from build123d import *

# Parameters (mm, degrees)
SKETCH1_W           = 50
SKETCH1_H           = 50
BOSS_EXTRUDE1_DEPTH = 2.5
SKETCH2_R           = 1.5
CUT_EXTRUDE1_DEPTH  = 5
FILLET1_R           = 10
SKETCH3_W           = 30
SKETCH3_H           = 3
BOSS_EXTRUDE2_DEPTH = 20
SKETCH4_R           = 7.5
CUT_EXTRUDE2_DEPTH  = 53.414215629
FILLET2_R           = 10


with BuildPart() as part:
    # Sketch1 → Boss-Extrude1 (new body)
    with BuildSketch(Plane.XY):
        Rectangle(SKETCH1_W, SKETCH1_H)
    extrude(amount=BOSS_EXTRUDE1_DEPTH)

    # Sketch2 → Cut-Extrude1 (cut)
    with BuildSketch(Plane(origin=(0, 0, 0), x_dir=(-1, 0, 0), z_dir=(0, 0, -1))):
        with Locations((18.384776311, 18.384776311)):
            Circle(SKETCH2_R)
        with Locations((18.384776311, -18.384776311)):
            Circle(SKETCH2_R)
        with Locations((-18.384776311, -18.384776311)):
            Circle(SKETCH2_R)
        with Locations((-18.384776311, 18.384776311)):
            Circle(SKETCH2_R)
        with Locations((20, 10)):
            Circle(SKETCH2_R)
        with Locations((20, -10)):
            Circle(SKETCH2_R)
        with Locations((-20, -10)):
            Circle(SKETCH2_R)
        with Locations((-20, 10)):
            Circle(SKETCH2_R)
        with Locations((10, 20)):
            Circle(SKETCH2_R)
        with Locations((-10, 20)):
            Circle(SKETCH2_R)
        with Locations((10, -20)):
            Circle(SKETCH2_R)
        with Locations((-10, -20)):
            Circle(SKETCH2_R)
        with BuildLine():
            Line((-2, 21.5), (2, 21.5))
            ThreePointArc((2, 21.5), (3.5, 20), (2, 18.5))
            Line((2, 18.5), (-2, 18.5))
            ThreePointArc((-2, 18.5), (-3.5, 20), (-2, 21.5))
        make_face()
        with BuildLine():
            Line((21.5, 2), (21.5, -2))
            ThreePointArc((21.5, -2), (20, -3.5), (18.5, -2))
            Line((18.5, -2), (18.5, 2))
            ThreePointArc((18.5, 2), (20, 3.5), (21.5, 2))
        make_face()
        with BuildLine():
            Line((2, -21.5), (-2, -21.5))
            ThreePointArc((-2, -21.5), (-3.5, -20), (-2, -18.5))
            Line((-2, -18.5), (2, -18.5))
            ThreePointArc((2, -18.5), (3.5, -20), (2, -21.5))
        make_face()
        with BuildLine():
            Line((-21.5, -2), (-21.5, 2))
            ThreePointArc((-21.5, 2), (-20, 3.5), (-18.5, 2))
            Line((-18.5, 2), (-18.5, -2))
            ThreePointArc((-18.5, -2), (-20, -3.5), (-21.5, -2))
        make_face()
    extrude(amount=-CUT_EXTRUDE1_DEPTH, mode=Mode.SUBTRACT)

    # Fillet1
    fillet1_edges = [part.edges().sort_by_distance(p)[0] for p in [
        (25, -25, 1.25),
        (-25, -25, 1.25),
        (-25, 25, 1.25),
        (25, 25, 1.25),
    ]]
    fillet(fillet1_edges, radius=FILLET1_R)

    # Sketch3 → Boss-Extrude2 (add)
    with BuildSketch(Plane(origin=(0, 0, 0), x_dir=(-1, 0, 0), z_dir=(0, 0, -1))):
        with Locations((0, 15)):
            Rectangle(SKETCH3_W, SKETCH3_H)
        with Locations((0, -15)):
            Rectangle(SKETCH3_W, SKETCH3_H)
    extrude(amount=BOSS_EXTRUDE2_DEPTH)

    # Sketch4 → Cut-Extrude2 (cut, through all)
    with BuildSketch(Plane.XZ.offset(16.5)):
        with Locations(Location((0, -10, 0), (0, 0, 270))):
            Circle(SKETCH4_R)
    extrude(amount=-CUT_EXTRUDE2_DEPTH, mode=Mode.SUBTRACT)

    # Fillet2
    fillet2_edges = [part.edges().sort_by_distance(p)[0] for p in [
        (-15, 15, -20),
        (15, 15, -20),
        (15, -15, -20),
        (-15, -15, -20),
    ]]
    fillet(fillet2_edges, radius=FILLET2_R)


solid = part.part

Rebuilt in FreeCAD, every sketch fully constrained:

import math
import FreeCAD as App
import Part
import Sketcher
from FreeCAD import Vector
Q = App.Units.Quantity


def edges_at(feature, points):
    """Names of the edges that pass closest to the given points."""
    edges = feature.Shape.Edges
    near = lambda p: min(range(len(edges)), key=lambda i: edges[i].distToShape(Part.Vertex(*p))[0])
    return sorted({f"Edge{near(p) + 1}" for p in points})


def add_polygon(sketch, points):
    """Adds a closed chain of lines whose ends are joined by coincident constraints."""
    first, n = sketch.GeometryCount, len(points)
    for a, b in zip(points, points[1:] + points[:1]):
        sketch.addGeometry(Part.LineSegment(App.Vector(*a, 0), App.Vector(*b, 0)), False)
    for i in range(n):
        sketch.addConstraint(Sketcher.Constraint("Coincident", first + i, 2, first + (i + 1) % n, 1))

doc = App.newDocument("Part")
body = doc.addObject("PartDesign::Body", "Body")

sketch1 = body.newObject("Sketcher::SketchObject", "Sketch")
sketch1.AttachmentSupport = (doc.getObject("XY_Plane"), [""])
sketch1.MapMode = "FlatFace"
add_polygon(sketch1, [(-25, 25), (-25, -25), (25, -25), (25, 25)])
sketch1.addConstraint(Sketcher.Constraint("Vertical", 0))
sketch1.addConstraint(Sketcher.Constraint("Horizontal", 1))
sketch1.addConstraint(Sketcher.Constraint("Vertical", 2))
sketch1.addConstraint(Sketcher.Constraint("Horizontal", 3))
sketch1.addConstraint(Sketcher.Constraint("Symmetric", 0, 2, 2, 2, -1, 1))
sketch1.addConstraint(Sketcher.Constraint("Equal", 3, 0))
sketch1.addConstraint(Sketcher.Constraint("DistanceX", 1, 1, 1, 2, Q("50 mm")))
pad1 = body.newObject("PartDesign::Pad", "Pad")
pad1.Profile = sketch1
pad1.Length = 2.5

sketch2 = body.newObject("Sketcher::SketchObject", "Sketch001")
sketch2.AttachmentSupport = (doc.getObject("XY_Plane"), [""])
sketch2.MapMode = "FlatFace"
sketch2.addGeometry(Part.Circle(Vector(-18.4, 18.4, 0), Vector(0, 0, 1), 1.5), False)
sketch2.addGeometry(Part.Circle(Vector(-18.4, -18.4, 0), Vector(0, 0, 1), 1.5), False)
sketch2.addGeometry(Part.Circle(Vector(18.4, -18.4, 0), Vector(0, 0, 1), 1.5), False)
sketch2.addGeometry(Part.Circle(Vector(18.4, 18.4, 0), Vector(0, 0, 1), 1.5), False)
sketch2.addGeometry(Part.Circle(Vector(-20, 10, 0), Vector(0, 0, 1), 1.5), False)
sketch2.addGeometry(Part.Circle(Vector(-20, -10, 0), Vector(0, 0, 1), 1.5), False)
sketch2.addGeometry(Part.Circle(Vector(20, -10, 0), Vector(0, 0, 1), 1.5), False)
sketch2.addGeometry(Part.Circle(Vector(20, 10, 0), Vector(0, 0, 1), 1.5), False)
sketch2.addGeometry(Part.Circle(Vector(-10, 20, 0), Vector(0, 0, 1), 1.5), False)
sketch2.addGeometry(Part.Circle(Vector(10, 20, 0), Vector(0, 0, 1), 1.5), False)
sketch2.addGeometry(Part.Circle(Vector(-10, -20, 0), Vector(0, 0, 1), 1.5), False)
sketch2.addGeometry(Part.Circle(Vector(10, -20, 0), Vector(0, 0, 1), 1.5), False)
sketch2.addGeometry(Part.LineSegment(Vector(-2, 21.5, 0), Vector(2, 21.5, 0)), False)
sketch2.addGeometry(Part.ArcOfCircle(Part.Circle(Vector(2, 20, 0), Vector(0, 0, 1), 1.5), math.radians(-90), math.radians(90)), False)
sketch2.addGeometry(Part.LineSegment(Vector(2, 18.5, 0), Vector(-2, 18.5, 0)), False)
sketch2.addGeometry(Part.ArcOfCircle(Part.Circle(Vector(-2, 20, 0), Vector(0, 0, 1), 1.5), math.radians(90), math.radians(270)), False)
sketch2.addGeometry(Part.LineSegment(Vector(-21.5, -2, 0), Vector(-21.5, 2, 0)), False)
sketch2.addGeometry(Part.ArcOfCircle(Part.Circle(Vector(-20, 2, 0), Vector(0, 0, 1), 1.5), math.radians(0), math.radians(180)), False)
sketch2.addGeometry(Part.LineSegment(Vector(-18.5, 2, 0), Vector(-18.5, -2, 0)), False)
sketch2.addGeometry(Part.ArcOfCircle(Part.Circle(Vector(-20, -2, 0), Vector(0, 0, 1), 1.5), math.radians(180), math.radians(360)), False)
sketch2.addGeometry(Part.LineSegment(Vector(2, -21.5, 0), Vector(-2, -21.5, 0)), False)
sketch2.addGeometry(Part.ArcOfCircle(Part.Circle(Vector(-2, -20, 0), Vector(0, 0, 1), 1.5), math.radians(90), math.radians(270)), False)
sketch2.addGeometry(Part.LineSegment(Vector(-2, -18.5, 0), Vector(2, -18.5, 0)), False)
sketch2.addGeometry(Part.ArcOfCircle(Part.Circle(Vector(2, -20, 0), Vector(0, 0, 1), 1.5), math.radians(-90), math.radians(90)), False)
sketch2.addGeometry(Part.LineSegment(Vector(21.5, 2, 0), Vector(21.5, -2, 0)), False)
sketch2.addGeometry(Part.ArcOfCircle(Part.Circle(Vector(20, -2, 0), Vector(0, 0, 1), 1.5), math.radians(180), math.radians(360)), False)
sketch2.addGeometry(Part.LineSegment(Vector(18.5, -2, 0), Vector(18.5, 2, 0)), False)
sketch2.addGeometry(Part.ArcOfCircle(Part.Circle(Vector(20, 2, 0), Vector(0, 0, 1), 1.5), math.radians(0), math.radians(180)), False)
sketch2.addConstraint(Sketcher.Constraint("Tangent", 12, 2, 13, 2))
sketch2.addConstraint(Sketcher.Constraint("Tangent", 13, 1, 14, 1))
sketch2.addConstraint(Sketcher.Constraint("Tangent", 14, 2, 15, 2))
sketch2.addConstraint(Sketcher.Constraint("Tangent", 15, 1, 12, 1))
sketch2.addConstraint(Sketcher.Constraint("Tangent", 16, 2, 17, 2))
sketch2.addConstraint(Sketcher.Constraint("Tangent", 17, 1, 18, 1))
sketch2.addConstraint(Sketcher.Constraint("Tangent", 18, 2, 19, 2))
sketch2.addConstraint(Sketcher.Constraint("Tangent", 19, 1, 16, 1))
sketch2.addConstraint(Sketcher.Constraint("Tangent", 20, 2, 21, 2))
sketch2.addConstraint(Sketcher.Constraint("Tangent", 21, 1, 22, 1))
sketch2.addConstraint(Sketcher.Constraint("Tangent", 22, 2, 23, 2))
sketch2.addConstraint(Sketcher.Constraint("Tangent", 23, 1, 20, 1))
sketch2.addConstraint(Sketcher.Constraint("Tangent", 24, 2, 25, 2))
sketch2.addConstraint(Sketcher.Constraint("Tangent", 25, 1, 26, 1))
sketch2.addConstraint(Sketcher.Constraint("Tangent", 26, 2, 27, 2))
sketch2.addConstraint(Sketcher.Constraint("Tangent", 27, 1, 24, 1))
sketch2.addConstraint(Sketcher.Constraint("Horizontal", 12))
sketch2.addConstraint(Sketcher.Constraint("Horizontal", 14))
sketch2.addConstraint(Sketcher.Constraint("Vertical", 16))
sketch2.addConstraint(Sketcher.Constraint("Vertical", 18))
sketch2.addConstraint(Sketcher.Constraint("Horizontal", 20))
sketch2.addConstraint(Sketcher.Constraint("Horizontal", 22))
sketch2.addConstraint(Sketcher.Constraint("Vertical", 24))
sketch2.addConstraint(Sketcher.Constraint("Vertical", 26))
sketch2.addConstraint(Sketcher.Constraint("Equal", 0, 1))
sketch2.addConstraint(Sketcher.Constraint("Equal", 1, 2))
sketch2.addConstraint(Sketcher.Constraint("Equal", 2, 3))
sketch2.addConstraint(Sketcher.Constraint("Equal", 3, 4))
sketch2.addConstraint(Sketcher.Constraint("Equal", 4, 5))
sketch2.addConstraint(Sketcher.Constraint("Equal", 5, 6))
sketch2.addConstraint(Sketcher.Constraint("Equal", 6, 7))
sketch2.addConstraint(Sketcher.Constraint("Equal", 7, 8))
sketch2.addConstraint(Sketcher.Constraint("Equal", 8, 9))
sketch2.addConstraint(Sketcher.Constraint("Equal", 9, 10))
sketch2.addConstraint(Sketcher.Constraint("Equal", 10, 11))
sketch2.addConstraint(Sketcher.Constraint("Equal", 11, 13))
sketch2.addConstraint(Sketcher.Constraint("Equal", 15, 17))
sketch2.addConstraint(Sketcher.Constraint("Equal", 19, 21))
sketch2.addConstraint(Sketcher.Constraint("Equal", 23, 25))
sketch2.addConstraint(Sketcher.Constraint("Symmetric", 0, 3, 2, 3, -1, 1))
sketch2.addConstraint(Sketcher.Constraint("Symmetric", 1, 3, 3, 3, -1, 1))
sketch2.addConstraint(Sketcher.Constraint("Symmetric", 4, 3, 6, 3, -1, 1))
sketch2.addConstraint(Sketcher.Constraint("Symmetric", 5, 3, 7, 3, -1, 1))
sketch2.addConstraint(Sketcher.Constraint("Symmetric", 9, 3, 10, 3, -1, 1))
sketch2.addConstraint(Sketcher.Constraint("Symmetric", 8, 3, 11, 3, -1, 1))
sketch2.addConstraint(Sketcher.Constraint("Symmetric", 13, 3, 21, 3, -1, 1))
sketch2.addConstraint(Sketcher.Constraint("Symmetric", 17, 3, 25, 3, -1, 1))
sketch2.addConstraint(Sketcher.Constraint("Symmetric", 1, 3, 2, 3, -2))
sketch2.addConstraint(Sketcher.Constraint("Symmetric", 5, 3, 6, 3, -2))
sketch2.addConstraint(Sketcher.Constraint("Symmetric", 8, 3, 9, 3, -2))
sketch2.addConstraint(Sketcher.Constraint("Horizontal", 9, 3, 13, 3))
sketch2.addConstraint(Sketcher.Constraint("Horizontal", 19, 3, 25, 3))
sketch2.addConstraint(Sketcher.Constraint("Horizontal", 17, 3, 27, 3))
sketch2.addConstraint(Sketcher.Constraint("Vertical", 5, 3, 17, 3))
sketch2.addConstraint(Sketcher.Constraint("Vertical", 15, 3, 21, 3))
sketch2.addConstraint(Sketcher.Constraint("Vertical", 13, 3, 23, 3))
sketch2.addConstraint(Sketcher.Constraint("Equal", 22, 16))
sketch2.addConstraint(Sketcher.Constraint("Diameter", 0, Q("3 mm")))
sketch2.addConstraint(Sketcher.Constraint("DistanceX", 12, 1, 12, 2, Q("4 mm")))
sketch2.addConstraint(Sketcher.Constraint("DistanceX", 4, 3, -1, 1, Q("20 mm")))
sketch2.addConstraint(Sketcher.Constraint("DistanceY", -1, 1, 4, 3, Q("10 mm")))
sketch2.addConstraint(Sketcher.Constraint("DistanceX", 8, 3, -1, 1, Q("10 mm")))
sketch2.addConstraint(Sketcher.Constraint("DistanceY", -1, 1, 8, 3, Q("20 mm")))
sketch2.addConstraint(Sketcher.Constraint("DistanceX", 0, 3, -1, 1, Q("18.384776 mm")))
sketch2.addConstraint(Sketcher.Constraint("DistanceY", -1, 1, 0, 3, Q("18.384776 mm")))
pocket1 = body.newObject("PartDesign::Pocket", "Pocket")
pocket1.Profile = sketch2
pocket1.Length = 5
pocket1.Reversed = True
doc.recompute()

fillet = body.newObject("PartDesign::Fillet", "Fillet")
fillet.Base = (pocket1, edges_at(pocket1, [
    (25, -25, 1.25),
    (-25, -25, 1.25),
    (-25, 25, 1.25),
    (25, 25, 1.25),
]))
fillet.Radius = 10

sketch3 = body.newObject("Sketcher::SketchObject", "Sketch002")
sketch3.AttachmentSupport = (doc.getObject("XY_Plane"), [""])
sketch3.MapMode = "FlatFace"
add_polygon(sketch3, [(15, 16.5), (15, 13.5), (-15, 13.5), (-15, 16.5)])
add_polygon(sketch3, [(15, -13.5), (15, -16.5), (-15, -16.5), (-15, -13.5)])
sketch3.addConstraint(Sketcher.Constraint("Vertical", 0))
sketch3.addConstraint(Sketcher.Constraint("Horizontal", 1))
sketch3.addConstraint(Sketcher.Constraint("Vertical", 2))
sketch3.addConstraint(Sketcher.Constraint("Horizontal", 3))
sketch3.addConstraint(Sketcher.Constraint("Vertical", 4))
sketch3.addConstraint(Sketcher.Constraint("Horizontal", 5))
sketch3.addConstraint(Sketcher.Constraint("Vertical", 6))
sketch3.addConstraint(Sketcher.Constraint("Horizontal", 7))
sketch3.addConstraint(Sketcher.Constraint("Symmetric", 2, 2, 4, 2, -1, 1))
sketch3.addConstraint(Sketcher.Constraint("Symmetric", 0, 2, 6, 2, -1, 1))
sketch3.addConstraint(Sketcher.Constraint("Vertical", 3, 2, 4, 2))
sketch3.addConstraint(Sketcher.Constraint("DistanceX", 1, 2, 1, 1, Q("30 mm")))
sketch3.addConstraint(Sketcher.Constraint("DistanceY", 0, 2, 0, 1, Q("3 mm")))
sketch3.addConstraint(Sketcher.Constraint("DistanceY", 4, 2, 0, 2, Q("30 mm")))
pad2 = body.newObject("PartDesign::Pad", "Pad001")
pad2.Profile = sketch3
pad2.Length = 20
pad2.Reversed = True

sketch4 = body.newObject("Sketcher::SketchObject", "Sketch003")
sketch4.AttachmentSupport = (doc.getObject("XZ_Plane"), [""])
sketch4.MapMode = "FlatFace"
sketch4.AttachmentOffset = App.Placement(Vector(0, 0, 16.5), App.Rotation())
sketch4.addGeometry(Part.Circle(Vector(0, -10, 0), Vector(0, 0, 1), 8), False)
sketch4.addConstraint(Sketcher.Constraint("PointOnObject", 0, 3, -2))
sketch4.addConstraint(Sketcher.Constraint("Diameter", 0, Q("15 mm")))
sketch4.addConstraint(Sketcher.Constraint("DistanceY", 0, 3, -1, 1, Q("10 mm")))
pocket2 = body.newObject("PartDesign::Pocket", "Pocket001")
pocket2.Profile = sketch4
pocket2.Type = "ThroughAll"
doc.recompute()

fillet2 = body.newObject("PartDesign::Fillet", "Fillet001")
fillet2.Base = (pocket2, edges_at(pocket2, [
    (-15, 15, -20),
    (15, 15, -20),
    (15, -15, -20),
    (-15, -15, -20),
]))
fillet2.Radius = 10

doc.recompute()
